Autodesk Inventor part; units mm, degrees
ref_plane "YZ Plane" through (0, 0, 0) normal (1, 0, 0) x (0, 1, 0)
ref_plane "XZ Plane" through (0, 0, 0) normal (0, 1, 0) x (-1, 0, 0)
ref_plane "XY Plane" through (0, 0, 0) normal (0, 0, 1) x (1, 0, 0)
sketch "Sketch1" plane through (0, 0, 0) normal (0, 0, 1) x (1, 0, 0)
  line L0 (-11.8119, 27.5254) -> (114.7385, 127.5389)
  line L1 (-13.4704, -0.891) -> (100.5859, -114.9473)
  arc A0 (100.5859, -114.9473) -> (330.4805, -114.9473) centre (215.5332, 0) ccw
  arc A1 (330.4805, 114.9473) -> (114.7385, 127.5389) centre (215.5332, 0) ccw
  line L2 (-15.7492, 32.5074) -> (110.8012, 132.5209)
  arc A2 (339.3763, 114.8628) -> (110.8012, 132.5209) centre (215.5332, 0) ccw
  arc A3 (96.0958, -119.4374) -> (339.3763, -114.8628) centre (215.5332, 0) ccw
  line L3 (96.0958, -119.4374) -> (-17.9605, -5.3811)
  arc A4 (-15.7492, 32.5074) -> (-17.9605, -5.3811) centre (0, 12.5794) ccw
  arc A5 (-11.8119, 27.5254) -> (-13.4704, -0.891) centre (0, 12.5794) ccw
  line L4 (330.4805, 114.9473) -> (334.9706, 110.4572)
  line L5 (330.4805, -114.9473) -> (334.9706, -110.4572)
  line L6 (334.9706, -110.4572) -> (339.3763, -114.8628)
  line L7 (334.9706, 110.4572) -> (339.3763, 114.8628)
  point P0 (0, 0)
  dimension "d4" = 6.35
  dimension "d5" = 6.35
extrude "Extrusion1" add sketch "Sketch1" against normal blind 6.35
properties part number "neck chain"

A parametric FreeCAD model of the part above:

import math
import FreeCAD as App
import Part
import Sketcher
Q = App.Units.Quantity

doc = App.newDocument("Part")
body = doc.addObject("PartDesign::Body", "Body")

# Sketch on XY plane
sketch1 = body.newObject("Sketcher::SketchObject", "Sketch")
sketch1.AttachmentSupport = (doc.getObject("XY_Plane"), [""])
sketch1.MapMode = "FlatFace"
sketch1.addGeometry(Part.ArcOfCircle(Part.Circle(App.Vector(0, 13, 0), App.Vector(0, 0, 1), 19), math.radians(128), math.radians(225)), False)
sketch1.addGeometry(Part.LineSegment(App.Vector(-12, 28, 0), App.Vector(115, 128, 0)), False)
sketch1.addGeometry(Part.ArcOfCircle(Part.Circle(App.Vector(216, 0, 0), App.Vector(0, 0, 1), 163), math.radians(45), math.radians(128)), False)
sketch1.addGeometry(Part.LineSegment(App.Vector(330, 115, 0), App.Vector(335, 110, 0)), False)
sketch1.addGeometry(Part.LineSegment(App.Vector(335, 110, 0), App.Vector(339, 115, 0)), False)
sketch1.addGeometry(Part.ArcOfCircle(Part.Circle(App.Vector(216, 0, 0), App.Vector(0, 0, 1), 169), math.radians(43), math.radians(128)), False)
sketch1.addGeometry(Part.LineSegment(App.Vector(111, 133, 0), App.Vector(-16, 33, 0)), False)
sketch1.addGeometry(Part.ArcOfCircle(Part.Circle(App.Vector(0, 13, 0), App.Vector(0, 0, 1), 25), math.radians(128), math.radians(225)), False)
sketch1.addGeometry(Part.LineSegment(App.Vector(-18, -5, 0), App.Vector(96, -119, 0)), False)
sketch1.addGeometry(Part.ArcOfCircle(Part.Circle(App.Vector(216, 0, 0), App.Vector(0, 0, 1), 169), math.radians(-135), math.radians(-43)), False)
sketch1.addGeometry(Part.LineSegment(App.Vector(339, -115, 0), App.Vector(335, -110, 0)), False)
sketch1.addGeometry(Part.LineSegment(App.Vector(335, -110, 0), App.Vector(330, -115, 0)), False)
sketch1.addGeometry(Part.ArcOfCircle(Part.Circle(App.Vector(216, 0, 0), App.Vector(0, 0, 1), 163), math.radians(-135), math.radians(-45)), False)
sketch1.addGeometry(Part.LineSegment(App.Vector(101, -115, 0), App.Vector(-13, -1, 0)), False)
sketch1.addConstraint(Sketcher.Constraint("Tangent", 0, 1, 1, 1))
sketch1.addConstraint(Sketcher.Constraint("Tangent", 1, 2, 2, 2))
sketch1.addConstraint(Sketcher.Constraint("Tangent", 2, 1, 3, 1))
sketch1.addConstraint(Sketcher.Constraint("Coincident", 3, 2, 4, 1))
sketch1.addConstraint(Sketcher.Constraint("Coincident", 4, 2, 5, 1))
sketch1.addConstraint(Sketcher.Constraint("Tangent", 5, 2, 6, 1))
sketch1.addConstraint(Sketcher.Constraint("Tangent", 6, 2, 7, 1))
sketch1.addConstraint(Sketcher.Constraint("Tangent", 7, 2, 8, 1))
sketch1.addConstraint(Sketcher.Constraint("Tangent", 8, 2, 9, 1))
sketch1.addConstraint(Sketcher.Constraint("Coincident", 9, 2, 10, 1))
sketch1.addConstraint(Sketcher.Constraint("Coincident", 10, 2, 11, 1))
sketch1.addConstraint(Sketcher.Constraint("Tangent", 11, 2, 12, 2))
sketch1.addConstraint(Sketcher.Constraint("Tangent", 12, 1, 13, 1))
sketch1.addConstraint(Sketcher.Constraint("Tangent", 13, 2, 0, 2))
sketch1.addConstraint(Sketcher.Constraint("Coincident", 5, 3, 2, 3))
sketch1.addConstraint(Sketcher.Constraint("Coincident", 7, 3, 0, 3))
sketch1.addConstraint(Sketcher.Constraint("Coincident", 9, 3, 2, 3))
sketch1.addConstraint(Sketcher.Constraint("Coincident", 12, 3, 2, 3))
sketch1.addConstraint(Sketcher.Constraint("Equal", 5, 9))
sketch1.addConstraint(Sketcher.Constraint("Equal", 2, 12))
sketch1.addConstraint(Sketcher.Constraint("Symmetric", 4, 2, 9, 2, -1))
sketch1.addConstraint(Sketcher.Constraint("Symmetric", 3, 2, 10, 2, -1))
sketch1.addConstraint(Sketcher.Constraint("PointOnObject", 0, 3, -2))
sketch1.addConstraint(Sketcher.Constraint("Perpendicular", 3, 4))
sketch1.addConstraint(Sketcher.Constraint("Parallel", 1, 6))
sketch1.addConstraint(Sketcher.Constraint("Perpendicular", 4, 8))
sketch1.addConstraint(Sketcher.Constraint("Parallel", 8, 10))
sketch1.addConstraint(Sketcher.Constraint("Radius", 7, Q("1 in")))
sketch1.addConstraint(Sketcher.Constraint("Radius", 2, Q("6.4 in")))
sketch1.addConstraint(Sketcher.Constraint("Distance", 3, Q("0.25 in")))
sketch1.addConstraint(Sketcher.Constraint("Radius", 0, Q("0.75 in")))
sketch1.addConstraint(Sketcher.Constraint("Angle", 1, Q("38.3195 deg")))
pad1 = body.newObject("PartDesign::Pad", "Pad")
pad1.Profile = sketch1
pad1.Length = Q("0.25 in")
pad1.Reversed = True

doc.recompute()
